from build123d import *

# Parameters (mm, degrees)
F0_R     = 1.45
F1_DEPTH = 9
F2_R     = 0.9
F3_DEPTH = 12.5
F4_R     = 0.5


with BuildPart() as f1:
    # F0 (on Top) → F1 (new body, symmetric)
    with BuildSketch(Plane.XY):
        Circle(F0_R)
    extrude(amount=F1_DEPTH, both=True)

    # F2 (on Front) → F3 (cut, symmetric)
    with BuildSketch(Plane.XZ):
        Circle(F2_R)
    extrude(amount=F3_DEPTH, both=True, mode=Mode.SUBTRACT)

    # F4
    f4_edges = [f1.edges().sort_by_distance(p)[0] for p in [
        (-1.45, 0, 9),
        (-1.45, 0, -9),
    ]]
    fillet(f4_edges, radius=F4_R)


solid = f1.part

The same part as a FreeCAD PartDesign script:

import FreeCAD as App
import Part
import Sketcher
from FreeCAD import Vector


def edges_at(feature, points):
    """Names of the edges that pass closest to the given points."""
    edges = feature.Shape.Edges
    near = lambda p: min(range(len(edges)), key=lambda i: edges[i].distToShape(Part.Vertex(*p))[0])
    return sorted({f"Edge{near(p) + 1}" for p in points})

doc = App.newDocument("Part")
params = doc.addObject("Spreadsheet::Sheet", "Params")
for row, (alias, value) in enumerate([
    ("sketch1_diameter", "2.9 mm"),
    ("pad1_length", "18 mm"),
    ("sketch2_diameter", "1.8 mm"),
    ("pocket1_length", "25 mm"),
    ("fillet_radius", "0.5 mm"),
], start=1):
    params.set(f"A{row}", alias)
    params.set(f"B{row}", "=" + value)
    params.setAlias(f"B{row}", alias)

body = doc.addObject("PartDesign::Body", "Body")

# Sketch on XY plane
sketch1 = body.newObject("Sketcher::SketchObject", "Sketch")
sketch1.AttachmentSupport = (doc.getObject("XY_Plane"), [""])
sketch1.MapMode = "FlatFace"
sketch1.addGeometry(Part.Circle(Vector(0, 0, 0), Vector(0, 0, 1), 1.4), False)
sketch1.addConstraint([
    Sketcher.Constraint("Coincident", 0, 3, -1, 1),
    Sketcher.Constraint("Diameter", 0, 2.9),
])
sketch1.setExpression("Constraints[1]", "Params.sketch1_diameter")
pad1 = body.newObject("PartDesign::Pad", "Pad")
pad1.Profile = sketch1
pad1.setExpression("Length", "Params.pad1_length")
pad1.Midplane = True

# Sketch on XZ plane
sketch2 = body.newObject("Sketcher::SketchObject", "Sketch001")
sketch2.AttachmentSupport = (doc.getObject("XZ_Plane"), [""])
sketch2.MapMode = "FlatFace"
sketch2.addGeometry(Part.Circle(Vector(0, 0, 0), Vector(0, 0, 1), 0.9), False)
sketch2.addConstraint([
    Sketcher.Constraint("Coincident", 0, 3, -1, 1),
    Sketcher.Constraint("Diameter", 0, 1.8),
])
sketch2.setExpression("Constraints[1]", "Params.sketch2_diameter")
pocket1 = body.newObject("PartDesign::Pocket", "Pocket")
pocket1.Profile = sketch2
pocket1.setExpression("Length", "Params.pocket1_length")
pocket1.Midplane = True
doc.recompute()

fillet = body.newObject("PartDesign::Fillet", "Fillet")
fillet.Base = (pocket1, edges_at(pocket1, [(-1.45, 0, 9), (-1.45, 0, -9)]))
fillet.setExpression("Radius", "Params.fillet_radius")

doc.recompute()
